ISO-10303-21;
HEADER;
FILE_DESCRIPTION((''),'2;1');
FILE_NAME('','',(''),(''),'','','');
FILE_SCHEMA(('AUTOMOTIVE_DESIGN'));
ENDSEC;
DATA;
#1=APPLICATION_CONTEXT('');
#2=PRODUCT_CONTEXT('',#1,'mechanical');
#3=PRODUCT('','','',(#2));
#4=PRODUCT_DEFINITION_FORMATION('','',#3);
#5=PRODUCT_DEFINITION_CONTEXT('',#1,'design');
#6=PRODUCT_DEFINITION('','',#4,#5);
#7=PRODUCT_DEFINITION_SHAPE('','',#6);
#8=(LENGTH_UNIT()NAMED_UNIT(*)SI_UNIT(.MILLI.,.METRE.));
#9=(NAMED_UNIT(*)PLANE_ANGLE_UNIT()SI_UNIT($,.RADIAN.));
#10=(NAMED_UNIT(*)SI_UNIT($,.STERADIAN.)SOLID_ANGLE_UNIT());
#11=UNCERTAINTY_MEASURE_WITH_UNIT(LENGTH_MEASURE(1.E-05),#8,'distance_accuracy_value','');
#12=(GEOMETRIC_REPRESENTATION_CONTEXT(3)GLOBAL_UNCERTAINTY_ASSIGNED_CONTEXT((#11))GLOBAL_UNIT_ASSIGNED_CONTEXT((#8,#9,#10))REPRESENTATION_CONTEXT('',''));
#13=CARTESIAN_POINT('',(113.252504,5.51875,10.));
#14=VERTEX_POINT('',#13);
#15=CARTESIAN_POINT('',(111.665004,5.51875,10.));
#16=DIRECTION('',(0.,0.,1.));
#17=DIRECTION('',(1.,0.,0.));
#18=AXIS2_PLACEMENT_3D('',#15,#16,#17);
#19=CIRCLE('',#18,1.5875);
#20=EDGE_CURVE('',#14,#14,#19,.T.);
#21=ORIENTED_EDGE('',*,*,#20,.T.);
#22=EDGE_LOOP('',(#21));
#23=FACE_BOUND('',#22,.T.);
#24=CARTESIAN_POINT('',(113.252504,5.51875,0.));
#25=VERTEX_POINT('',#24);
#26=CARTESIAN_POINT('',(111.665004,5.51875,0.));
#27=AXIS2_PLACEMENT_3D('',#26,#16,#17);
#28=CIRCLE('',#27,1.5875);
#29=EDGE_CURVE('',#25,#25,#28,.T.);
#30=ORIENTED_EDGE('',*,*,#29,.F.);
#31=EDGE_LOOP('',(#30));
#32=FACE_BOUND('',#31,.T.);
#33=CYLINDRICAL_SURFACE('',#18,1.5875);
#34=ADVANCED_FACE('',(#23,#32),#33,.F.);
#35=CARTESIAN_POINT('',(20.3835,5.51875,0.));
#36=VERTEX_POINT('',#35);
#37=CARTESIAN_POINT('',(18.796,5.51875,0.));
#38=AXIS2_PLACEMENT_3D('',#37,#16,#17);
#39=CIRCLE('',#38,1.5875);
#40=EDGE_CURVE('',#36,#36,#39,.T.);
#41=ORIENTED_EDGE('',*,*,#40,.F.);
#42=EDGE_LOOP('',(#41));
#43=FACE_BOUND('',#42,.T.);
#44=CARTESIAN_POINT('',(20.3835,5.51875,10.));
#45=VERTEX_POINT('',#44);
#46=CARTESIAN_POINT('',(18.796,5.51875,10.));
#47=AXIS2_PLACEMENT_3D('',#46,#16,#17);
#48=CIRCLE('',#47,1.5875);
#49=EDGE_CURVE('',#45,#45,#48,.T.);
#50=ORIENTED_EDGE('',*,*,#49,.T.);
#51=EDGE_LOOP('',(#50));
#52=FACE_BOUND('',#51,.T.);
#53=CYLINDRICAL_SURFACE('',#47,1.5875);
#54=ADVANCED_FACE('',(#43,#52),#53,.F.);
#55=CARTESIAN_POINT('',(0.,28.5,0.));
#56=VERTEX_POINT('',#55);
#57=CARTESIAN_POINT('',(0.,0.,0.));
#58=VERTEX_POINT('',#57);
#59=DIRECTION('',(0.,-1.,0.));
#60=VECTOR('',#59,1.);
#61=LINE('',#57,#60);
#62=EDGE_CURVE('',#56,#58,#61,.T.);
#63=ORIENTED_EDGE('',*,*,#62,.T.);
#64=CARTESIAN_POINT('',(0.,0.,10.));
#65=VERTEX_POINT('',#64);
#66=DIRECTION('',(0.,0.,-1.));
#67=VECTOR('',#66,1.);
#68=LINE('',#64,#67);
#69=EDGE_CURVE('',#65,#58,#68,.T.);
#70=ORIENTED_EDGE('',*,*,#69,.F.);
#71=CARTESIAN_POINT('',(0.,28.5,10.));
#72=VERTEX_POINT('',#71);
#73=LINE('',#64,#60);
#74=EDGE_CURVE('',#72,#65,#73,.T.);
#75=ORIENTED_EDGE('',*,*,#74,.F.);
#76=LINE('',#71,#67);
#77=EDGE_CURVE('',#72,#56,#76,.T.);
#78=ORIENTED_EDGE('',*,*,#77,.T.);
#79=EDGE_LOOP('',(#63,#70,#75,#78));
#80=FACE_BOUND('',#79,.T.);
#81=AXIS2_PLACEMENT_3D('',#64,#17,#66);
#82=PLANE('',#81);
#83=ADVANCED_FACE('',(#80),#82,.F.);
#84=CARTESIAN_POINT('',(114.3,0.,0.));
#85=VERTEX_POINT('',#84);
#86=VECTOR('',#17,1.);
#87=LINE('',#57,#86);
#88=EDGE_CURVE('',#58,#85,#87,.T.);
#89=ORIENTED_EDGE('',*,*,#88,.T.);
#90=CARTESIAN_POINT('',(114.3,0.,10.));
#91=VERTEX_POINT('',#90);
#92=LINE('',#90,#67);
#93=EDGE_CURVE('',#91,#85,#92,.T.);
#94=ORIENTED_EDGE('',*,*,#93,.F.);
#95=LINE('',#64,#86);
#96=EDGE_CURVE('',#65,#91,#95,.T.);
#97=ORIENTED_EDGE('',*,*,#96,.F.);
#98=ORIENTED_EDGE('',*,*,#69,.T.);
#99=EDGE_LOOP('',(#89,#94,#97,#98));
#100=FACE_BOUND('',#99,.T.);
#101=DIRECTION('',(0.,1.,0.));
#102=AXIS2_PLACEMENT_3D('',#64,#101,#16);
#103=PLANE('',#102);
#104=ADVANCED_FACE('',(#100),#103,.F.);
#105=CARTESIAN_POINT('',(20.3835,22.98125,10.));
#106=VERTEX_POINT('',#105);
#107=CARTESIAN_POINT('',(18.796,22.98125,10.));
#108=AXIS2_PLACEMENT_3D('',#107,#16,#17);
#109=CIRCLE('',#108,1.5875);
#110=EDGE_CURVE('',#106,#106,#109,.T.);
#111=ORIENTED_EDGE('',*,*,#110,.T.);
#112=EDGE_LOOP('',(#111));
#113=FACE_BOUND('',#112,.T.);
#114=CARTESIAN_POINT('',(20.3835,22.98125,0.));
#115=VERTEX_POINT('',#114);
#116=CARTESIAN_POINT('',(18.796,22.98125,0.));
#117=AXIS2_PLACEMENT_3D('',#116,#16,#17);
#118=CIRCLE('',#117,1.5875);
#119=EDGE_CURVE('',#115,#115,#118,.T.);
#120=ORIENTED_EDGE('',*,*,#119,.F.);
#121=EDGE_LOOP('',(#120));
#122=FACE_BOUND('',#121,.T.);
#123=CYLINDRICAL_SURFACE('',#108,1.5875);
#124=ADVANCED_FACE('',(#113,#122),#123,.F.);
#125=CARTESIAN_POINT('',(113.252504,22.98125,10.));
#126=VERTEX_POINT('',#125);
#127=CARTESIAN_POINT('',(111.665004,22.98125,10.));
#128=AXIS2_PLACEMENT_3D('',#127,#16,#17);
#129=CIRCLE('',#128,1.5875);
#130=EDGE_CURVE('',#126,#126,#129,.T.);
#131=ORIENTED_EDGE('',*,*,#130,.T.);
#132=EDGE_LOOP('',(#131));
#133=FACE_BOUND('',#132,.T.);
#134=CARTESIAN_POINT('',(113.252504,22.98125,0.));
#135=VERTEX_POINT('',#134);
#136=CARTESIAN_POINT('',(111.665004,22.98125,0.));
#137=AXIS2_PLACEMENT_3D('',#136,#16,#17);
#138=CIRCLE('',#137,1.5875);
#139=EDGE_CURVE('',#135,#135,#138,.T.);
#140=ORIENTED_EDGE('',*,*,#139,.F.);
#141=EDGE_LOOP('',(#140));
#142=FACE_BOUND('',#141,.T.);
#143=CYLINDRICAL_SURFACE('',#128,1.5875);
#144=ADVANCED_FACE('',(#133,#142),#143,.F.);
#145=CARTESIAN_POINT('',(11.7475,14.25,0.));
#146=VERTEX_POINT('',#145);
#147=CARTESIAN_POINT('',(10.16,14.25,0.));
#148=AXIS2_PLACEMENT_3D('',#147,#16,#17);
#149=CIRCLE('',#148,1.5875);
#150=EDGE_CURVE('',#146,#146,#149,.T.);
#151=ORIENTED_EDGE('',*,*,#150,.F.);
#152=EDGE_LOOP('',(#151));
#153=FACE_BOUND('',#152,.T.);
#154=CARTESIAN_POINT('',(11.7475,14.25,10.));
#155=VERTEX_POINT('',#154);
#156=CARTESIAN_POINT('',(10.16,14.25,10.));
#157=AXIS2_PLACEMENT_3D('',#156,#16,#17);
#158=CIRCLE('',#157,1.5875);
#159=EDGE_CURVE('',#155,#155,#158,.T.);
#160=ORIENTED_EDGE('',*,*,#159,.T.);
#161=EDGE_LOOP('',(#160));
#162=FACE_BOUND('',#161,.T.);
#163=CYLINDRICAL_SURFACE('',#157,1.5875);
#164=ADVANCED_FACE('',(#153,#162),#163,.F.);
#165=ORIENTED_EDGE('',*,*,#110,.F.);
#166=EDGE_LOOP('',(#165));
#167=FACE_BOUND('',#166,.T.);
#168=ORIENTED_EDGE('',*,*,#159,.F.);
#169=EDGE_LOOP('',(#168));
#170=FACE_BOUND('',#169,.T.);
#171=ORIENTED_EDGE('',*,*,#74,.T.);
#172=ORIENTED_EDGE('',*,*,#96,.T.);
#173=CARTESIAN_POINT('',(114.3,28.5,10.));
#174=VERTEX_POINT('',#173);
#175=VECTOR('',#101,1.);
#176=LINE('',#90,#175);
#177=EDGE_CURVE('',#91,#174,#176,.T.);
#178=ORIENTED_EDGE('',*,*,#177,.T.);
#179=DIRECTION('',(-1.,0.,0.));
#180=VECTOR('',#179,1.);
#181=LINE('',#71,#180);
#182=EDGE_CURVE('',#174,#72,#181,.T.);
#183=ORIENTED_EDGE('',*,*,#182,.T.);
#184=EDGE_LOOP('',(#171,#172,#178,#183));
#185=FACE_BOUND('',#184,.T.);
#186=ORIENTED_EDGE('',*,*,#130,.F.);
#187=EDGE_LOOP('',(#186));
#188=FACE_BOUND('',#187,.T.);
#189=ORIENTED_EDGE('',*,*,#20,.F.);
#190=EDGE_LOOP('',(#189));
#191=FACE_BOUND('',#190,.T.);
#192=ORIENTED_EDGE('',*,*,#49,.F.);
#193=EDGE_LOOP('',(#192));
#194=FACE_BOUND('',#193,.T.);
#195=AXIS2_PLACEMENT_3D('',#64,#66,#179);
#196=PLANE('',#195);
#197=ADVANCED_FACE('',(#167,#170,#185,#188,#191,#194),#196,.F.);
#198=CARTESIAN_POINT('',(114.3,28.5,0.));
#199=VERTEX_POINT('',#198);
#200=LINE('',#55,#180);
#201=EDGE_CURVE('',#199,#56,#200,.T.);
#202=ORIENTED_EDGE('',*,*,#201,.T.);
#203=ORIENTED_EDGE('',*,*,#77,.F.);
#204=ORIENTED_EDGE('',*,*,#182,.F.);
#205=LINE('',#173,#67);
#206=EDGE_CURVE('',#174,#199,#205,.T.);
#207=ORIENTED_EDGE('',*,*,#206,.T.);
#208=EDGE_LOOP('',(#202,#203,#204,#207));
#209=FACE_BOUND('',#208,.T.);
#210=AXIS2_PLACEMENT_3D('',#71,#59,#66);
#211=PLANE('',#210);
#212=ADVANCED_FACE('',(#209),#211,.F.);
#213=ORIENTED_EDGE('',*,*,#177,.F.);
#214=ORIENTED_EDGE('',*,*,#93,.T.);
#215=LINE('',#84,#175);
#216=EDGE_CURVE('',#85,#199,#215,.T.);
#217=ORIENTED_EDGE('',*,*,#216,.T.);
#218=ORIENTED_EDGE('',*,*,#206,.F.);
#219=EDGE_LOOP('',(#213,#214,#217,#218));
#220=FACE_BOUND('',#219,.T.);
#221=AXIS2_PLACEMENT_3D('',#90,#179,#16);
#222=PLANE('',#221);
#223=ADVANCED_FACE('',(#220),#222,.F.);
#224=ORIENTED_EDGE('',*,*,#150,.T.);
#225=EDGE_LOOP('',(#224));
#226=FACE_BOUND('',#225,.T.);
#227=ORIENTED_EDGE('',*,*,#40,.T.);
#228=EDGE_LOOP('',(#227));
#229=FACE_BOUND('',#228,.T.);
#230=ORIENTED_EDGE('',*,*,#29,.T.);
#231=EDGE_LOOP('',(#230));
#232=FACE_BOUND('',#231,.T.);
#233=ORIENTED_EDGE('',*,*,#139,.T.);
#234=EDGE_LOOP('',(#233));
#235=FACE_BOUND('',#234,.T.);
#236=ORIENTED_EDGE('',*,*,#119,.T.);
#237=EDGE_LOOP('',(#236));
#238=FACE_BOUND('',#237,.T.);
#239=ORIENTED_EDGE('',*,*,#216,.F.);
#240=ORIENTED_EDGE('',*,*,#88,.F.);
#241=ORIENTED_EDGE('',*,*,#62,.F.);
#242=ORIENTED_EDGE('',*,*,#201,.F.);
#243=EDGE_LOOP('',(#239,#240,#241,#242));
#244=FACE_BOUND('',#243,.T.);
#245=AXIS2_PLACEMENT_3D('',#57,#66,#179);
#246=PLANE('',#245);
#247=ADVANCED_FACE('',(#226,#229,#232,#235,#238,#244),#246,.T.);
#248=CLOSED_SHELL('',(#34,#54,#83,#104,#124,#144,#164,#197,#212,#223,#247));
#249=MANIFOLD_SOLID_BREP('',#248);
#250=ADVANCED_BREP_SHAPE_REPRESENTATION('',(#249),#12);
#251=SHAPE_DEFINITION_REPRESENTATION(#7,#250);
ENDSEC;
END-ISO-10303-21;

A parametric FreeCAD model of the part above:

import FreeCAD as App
import Part
import Sketcher
from FreeCAD import Vector
Q = App.Units.Quantity


def add_polygon(sketch, points):
    """Adds a closed chain of lines whose ends are joined by coincident constraints."""
    first, n = sketch.GeometryCount, len(points)
    for a, b in zip(points, points[1:] + points[:1]):
        sketch.addGeometry(Part.LineSegment(App.Vector(*a, 0), App.Vector(*b, 0)), False)
    for i in range(n):
        sketch.addConstraint(Sketcher.Constraint("Coincident", first + i, 2, first + (i + 1) % n, 1))

doc = App.newDocument("Part")
params = doc.addObject("Spreadsheet::Sheet", "Params")
for row, (alias, value) in enumerate([
    ("sketch1_width", "114.3 mm"),
    ("sketch1_height", "28.5 mm"),
    ("pad1_length", "10 mm"),
    ("hole_diameter", "3.175 mm"),
], start=1):
    params.set(f"A{row}", alias)
    params.set(f"B{row}", "=" + value)
    params.setAlias(f"B{row}", alias)

body = doc.addObject("PartDesign::Body", "Body")

sketch1 = body.newObject("Sketcher::SketchObject", "Sketch")
sketch1.AttachmentSupport = (doc.getObject("XY_Plane"), [""])
sketch1.MapMode = "FlatFace"
add_polygon(sketch1, [(0, 28), (0, 0), (114, 0), (114, 28)])
sketch1.addConstraint([
    Sketcher.Constraint("Vertical", 0),
    Sketcher.Constraint("Horizontal", 1),
    Sketcher.Constraint("Vertical", 2),
    Sketcher.Constraint("Horizontal", 3),
    Sketcher.Constraint("Coincident", 0, 2, -1, 1),
    Sketcher.Constraint("DistanceX", 1, 1, 1, 2, Q("114.3 mm")),
    Sketcher.Constraint("DistanceY", 0, 2, 0, 1, Q("28.5 mm")),
])
sketch1.setExpression("Constraints[9]", "Params.sketch1_width")
sketch1.setExpression("Constraints[10]", "Params.sketch1_height")
pad1 = body.newObject("PartDesign::Pad", "Pad")
pad1.Profile = sketch1
pad1.setExpression("Length", "Params.pad1_length")

sketch2 = body.newObject("Sketcher::SketchObject", "Sketch001")
sketch2.AttachmentSupport = (doc.getObject("XY_Plane"), [""])
sketch2.MapMode = "FlatFace"
sketch2.AttachmentOffset = App.Placement(Vector(0, 0, 10), App.Rotation())
sketch2.addGeometry([
    Part.Circle(Vector(18.8, 23, 0), Vector(0, 0, 1), 1.6),
    Part.Circle(Vector(111.7, 23, 0), Vector(0, 0, 1), 1.6),
    Part.Circle(Vector(10.2, 14.2, 0), Vector(0, 0, 1), 1.6),
], False)
sketch2.addConstraint([
    Sketcher.Constraint("Equal", 0, 1),
    Sketcher.Constraint("Equal", 1, 2),
    Sketcher.Constraint("Horizontal", 0, 3, 1, 3),
    Sketcher.Constraint("Diameter", 0, Q("3.175 mm")),
    Sketcher.Constraint("DistanceX", -1, 1, 2, 3, Q("10.16 mm")),
    Sketcher.Constraint("DistanceY", -1, 1, 2, 3, Q("14.25 mm")),
    Sketcher.Constraint("DistanceX", -1, 1, 0, 3, Q("18.796 mm")),
    Sketcher.Constraint("DistanceY", -1, 1, 0, 3, Q("22.98125 mm")),
    Sketcher.Constraint("DistanceX", -1, 1, 1, 3, Q("111.665004 mm")),
])
doc.recompute()
hole = body.newObject("PartDesign::Hole", "Hole")
hole.Profile = sketch2
hole.ThreadType = "None"
hole.setExpression("Diameter", "Params.hole_diameter")
hole.DepthType = "ThroughAll"
doc.recompute()

datumplane = body.newObject("PartDesign::Plane", "DatumPlane")
datumplane.AttachmentSupport = (doc.getObject("XZ_Plane"), [""])
datumplane.MapMode = "FlatFace"
datumplane.AttachmentOffset = App.Placement(Vector(0, 0, -14.25), App.Rotation())
mirrored = body.newObject("PartDesign::Mirrored", "Mirrored")
mirrored.Originals = [hole]
mirrored.MirrorPlane = (datumplane, [""])
body.Tip = mirrored

doc.recompute()
